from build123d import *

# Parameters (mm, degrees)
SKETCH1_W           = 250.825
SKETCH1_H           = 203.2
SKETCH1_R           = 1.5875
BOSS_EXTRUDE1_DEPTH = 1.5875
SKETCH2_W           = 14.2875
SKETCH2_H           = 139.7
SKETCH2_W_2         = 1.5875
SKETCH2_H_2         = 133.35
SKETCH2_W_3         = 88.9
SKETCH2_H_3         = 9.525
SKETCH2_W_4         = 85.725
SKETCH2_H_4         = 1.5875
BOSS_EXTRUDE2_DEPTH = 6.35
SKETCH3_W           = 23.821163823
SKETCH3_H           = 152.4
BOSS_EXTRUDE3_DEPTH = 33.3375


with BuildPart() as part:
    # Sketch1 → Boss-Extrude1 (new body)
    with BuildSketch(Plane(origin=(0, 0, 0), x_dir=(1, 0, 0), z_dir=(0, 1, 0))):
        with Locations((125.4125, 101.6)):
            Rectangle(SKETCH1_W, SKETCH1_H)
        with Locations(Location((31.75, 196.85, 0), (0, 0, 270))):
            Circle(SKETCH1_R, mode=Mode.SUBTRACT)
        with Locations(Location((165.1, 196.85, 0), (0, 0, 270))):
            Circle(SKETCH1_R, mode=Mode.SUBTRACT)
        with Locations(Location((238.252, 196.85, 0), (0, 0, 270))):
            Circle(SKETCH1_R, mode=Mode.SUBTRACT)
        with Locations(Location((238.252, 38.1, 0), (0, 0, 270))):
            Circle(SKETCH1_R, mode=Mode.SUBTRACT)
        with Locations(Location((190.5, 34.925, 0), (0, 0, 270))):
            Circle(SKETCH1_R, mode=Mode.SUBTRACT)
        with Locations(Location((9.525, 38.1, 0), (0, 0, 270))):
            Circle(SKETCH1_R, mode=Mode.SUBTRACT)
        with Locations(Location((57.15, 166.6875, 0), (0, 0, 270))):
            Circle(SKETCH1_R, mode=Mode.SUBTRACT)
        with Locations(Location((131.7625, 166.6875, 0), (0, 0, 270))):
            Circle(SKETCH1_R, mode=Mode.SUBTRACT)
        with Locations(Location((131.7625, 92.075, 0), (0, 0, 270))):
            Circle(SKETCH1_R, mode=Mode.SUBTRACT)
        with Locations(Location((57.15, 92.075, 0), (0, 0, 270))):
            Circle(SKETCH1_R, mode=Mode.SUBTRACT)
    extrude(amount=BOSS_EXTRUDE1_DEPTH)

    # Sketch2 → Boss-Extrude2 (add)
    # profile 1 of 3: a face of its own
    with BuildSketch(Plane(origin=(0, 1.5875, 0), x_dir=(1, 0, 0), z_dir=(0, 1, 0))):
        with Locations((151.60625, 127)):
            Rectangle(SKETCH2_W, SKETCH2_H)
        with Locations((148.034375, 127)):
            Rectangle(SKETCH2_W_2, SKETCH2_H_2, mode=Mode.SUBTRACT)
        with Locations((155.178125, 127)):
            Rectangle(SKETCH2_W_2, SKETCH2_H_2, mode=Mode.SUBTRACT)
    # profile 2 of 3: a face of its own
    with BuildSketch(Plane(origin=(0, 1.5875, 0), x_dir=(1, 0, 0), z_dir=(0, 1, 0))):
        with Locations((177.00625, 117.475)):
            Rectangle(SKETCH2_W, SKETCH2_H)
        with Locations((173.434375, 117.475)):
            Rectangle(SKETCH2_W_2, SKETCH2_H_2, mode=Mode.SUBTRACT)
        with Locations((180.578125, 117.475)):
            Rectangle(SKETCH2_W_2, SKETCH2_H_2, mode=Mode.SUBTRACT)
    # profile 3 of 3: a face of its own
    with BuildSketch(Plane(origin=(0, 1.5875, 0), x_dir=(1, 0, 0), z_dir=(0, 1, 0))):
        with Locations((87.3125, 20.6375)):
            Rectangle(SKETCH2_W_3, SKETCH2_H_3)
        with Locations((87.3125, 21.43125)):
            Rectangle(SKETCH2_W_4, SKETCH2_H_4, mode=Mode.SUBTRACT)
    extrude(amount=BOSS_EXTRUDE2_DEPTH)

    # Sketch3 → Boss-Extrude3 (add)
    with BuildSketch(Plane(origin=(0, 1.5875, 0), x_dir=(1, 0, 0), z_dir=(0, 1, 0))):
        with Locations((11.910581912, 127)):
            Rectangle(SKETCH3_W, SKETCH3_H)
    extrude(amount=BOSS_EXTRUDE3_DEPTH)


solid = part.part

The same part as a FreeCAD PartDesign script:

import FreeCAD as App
import Part
import Sketcher

V = App.Vector
Q = App.Units.Quantity

doc = App.newDocument("Part")
params = doc.addObject("Spreadsheet::Sheet", "Params")
for row, (alias, value) in enumerate([
    ("sketch1_height", "8 in"),
    ("sketch1_diameter", "0.125 in"),
    ("sketch1_width", "9.875 in"),
    ("pad1_length", "0.0625 in"),
    ("sketch2_width", "3.5 in"),
    ("sketch2_height", "5.5 in"),
    ("sketch2_height2", "5.25 in"),
    ("sketch2_width2", "0.5625 in"),
    ("sketch2_width3", "0.0625 in"),
    ("pad2_length", "0.25 in"),
    ("sketch3_height", "6 in"),
    ("pad3_length", "1.3125 in"),
], start=1):
    params.set(f"A{row}", alias)
    params.set(f"B{row}", "=" + value)
    params.setAlias(f"B{row}", alias)

body = doc.addObject("PartDesign::Body", "Body")

# Sketch on XZ plane
sketch1 = body.newObject("Sketcher::SketchObject", "Sketch")
sketch1.AttachmentSupport = (doc.getObject("XZ_Plane"), [""])
sketch1.MapMode = "FlatFace"
sketch1.addGeometry([
    Part.LineSegment(V(0, -203.2, 0), V(0, 0, 0)),  # 0
    Part.LineSegment(V(0, 0, 0), V(250.8, 0, 0)),  # 1
    Part.LineSegment(V(250.8, 0, 0), V(250.8, -203.2, 0)),  # 2
    Part.LineSegment(V(250.8, -203.2, 0), V(0, -203.2, 0)),  # 3
    Part.Circle(V(9.5, -38.1, 0), V(0, 0, 1), 1.6),  # 4
    Part.Circle(V(57.1, -92.1, 0), V(0, 0, 1), 1.6),  # 5
    Part.Circle(V(190.5, -34.9, 0), V(0, 0, 1), 1.6),  # 6
    Part.Circle(V(238.3, -38.1, 0), V(0, 0, 1), 1.6),  # 7
    Part.Circle(V(131.8, -92.1, 0), V(0, 0, 1), 1.6),  # 8
    Part.Circle(V(57.1, -166.7, 0), V(0, 0, 1), 1.6),  # 9
    Part.Circle(V(31.8, -196.8, 0), V(0, 0, 1), 1.6),  # 10
    Part.Circle(V(131.8, -166.7, 0), V(0, 0, 1), 1.6),  # 11
    Part.Circle(V(165.1, -196.8, 0), V(0, 0, 1), 1.6),  # 12
    Part.Circle(V(238.3, -196.8, 0), V(0, 0, 1), 1.6),  # 13
], False)
sketch1.addConstraint([
    Sketcher.Constraint("Coincident", 0, 2, 1, 1),
    Sketcher.Constraint("Coincident", 1, 2, 2, 1),
    Sketcher.Constraint("Coincident", 2, 2, 3, 1),
    Sketcher.Constraint("Coincident", 3, 2, 0, 1),
    Sketcher.Constraint("Vertical", 0),
    Sketcher.Constraint("Horizontal", 1),
    Sketcher.Constraint("Vertical", 2),
    Sketcher.Constraint("Horizontal", 3),
    Sketcher.Constraint("Coincident", 0, 2, -1, 1),
    Sketcher.Constraint("Equal", 4, 5),
    Sketcher.Constraint("Equal", 5, 6),
    Sketcher.Constraint("Equal", 6, 7),
    Sketcher.Constraint("Equal", 7, 8),
    Sketcher.Constraint("Equal", 8, 9),
    Sketcher.Constraint("Equal", 9, 10),
    Sketcher.Constraint("Equal", 10, 11),
    Sketcher.Constraint("Equal", 11, 12),
    Sketcher.Constraint("Equal", 12, 13),
    Sketcher.Constraint("Horizontal", 4, 3, 7, 3),
    Sketcher.Constraint("Horizontal", 5, 3, 8, 3),
    Sketcher.Constraint("Horizontal", 9, 3, 11, 3),
    Sketcher.Constraint("Horizontal", 10, 3, 12, 3),
    Sketcher.Constraint("Horizontal", 12, 3, 13, 3),
    Sketcher.Constraint("Vertical", 5, 3, 9, 3),
    Sketcher.Constraint("Vertical", 8, 3, 11, 3),
    Sketcher.Constraint("Vertical", 7, 3, 13, 3),
    Sketcher.Constraint("DistanceY", 0, 1, 0, 2, Q("8 in")),
    Sketcher.Constraint("Diameter", 4, Q("0.125 in")),
    Sketcher.Constraint("DistanceX", 10, 3, 9, 3, Q("1 in")),
    Sketcher.Constraint("DistanceY", 4, 3, -1, 1, Q("1.5 in")),
    Sketcher.Constraint("DistanceX", -1, 1, 6, 3, Q("7.5 in")),
    Sketcher.Constraint("DistanceX", -1, 1, 12, 3, Q("6.5 in")),
    Sketcher.Constraint("DistanceX", 1, 1, 1, 2, Q("9.875 in")),
    Sketcher.Constraint("DistanceX", -1, 1, 5, 3, Q("2.25 in")),
    Sketcher.Constraint("DistanceX", -1, 1, 7, 3, Q("9.38 in")),
    Sketcher.Constraint("DistanceY", 10, 3, -1, 1, Q("7.75 in")),
    Sketcher.Constraint("DistanceY", 5, 3, 6, 3, Q("2.25 in")),
    Sketcher.Constraint("DistanceX", -1, 1, 4, 3, Q("0.375 in")),
    Sketcher.Constraint("DistanceY", 5, 3, -1, 1, Q("3.625 in")),
    Sketcher.Constraint("DistanceX", -1, 1, 8, 3, Q("5.1875 in")),
    Sketcher.Constraint("DistanceY", 9, 3, -1, 1, Q("6.5625 in")),
])
sketch1.setExpression("Constraints[26]", "Params.sketch1_height")
sketch1.setExpression("Constraints[27]", "Params.sketch1_diameter")
sketch1.setExpression("Constraints[32]", "Params.sketch1_width")
pad1 = body.newObject("PartDesign::Pad", "Pad")
pad1.Profile = sketch1
pad1.setExpression("Length", "Params.pad1_length")
pad1.Reversed = True

# Sketch on XZ plane
sketch2 = body.newObject("Sketcher::SketchObject", "Sketch001")
sketch2.AttachmentSupport = (doc.getObject("XZ_Plane"), [""])
sketch2.MapMode = "FlatFace"
sketch2.AttachmentOffset = App.Placement(V(0, 0, -0.0625 * 25.4), App.Rotation())
sketch2.addGeometry([
    Part.LineSegment(V(144.5, -196.8, 0), V(144.5, -57.1, 0)),  # 0
    Part.LineSegment(V(144.5, -57.1, 0), V(158.8, -57.1, 0)),  # 1
    Part.LineSegment(V(158.8, -57.1, 0), V(158.8, -196.8, 0)),  # 2
    Part.LineSegment(V(158.8, -196.8, 0), V(144.5, -196.8, 0)),  # 3
    Part.LineSegment(V(148.8, -60.3, 0), V(147.2, -60.3, 0)),  # 4
    Part.LineSegment(V(147.2, -60.3, 0), V(147.2, -193.7, 0)),  # 5
    Part.LineSegment(V(147.2, -193.7, 0), V(148.8, -193.7, 0)),  # 6
    Part.LineSegment(V(148.8, -193.7, 0), V(148.8, -60.3, 0)),  # 7
    Part.LineSegment(V(156, -60.3, 0), V(154.4, -60.3, 0)),  # 8
    Part.LineSegment(V(154.4, -60.3, 0), V(154.4, -193.7, 0)),  # 9
    Part.LineSegment(V(154.4, -193.7, 0), V(156, -193.7, 0)),  # 10
    Part.LineSegment(V(156, -193.7, 0), V(156, -60.3, 0)),  # 11
    Part.LineSegment(V(169.9, -187.3, 0), V(169.9, -47.6, 0)),  # 12
    Part.LineSegment(V(169.9, -47.6, 0), V(184.2, -47.6, 0)),  # 13
    Part.LineSegment(V(184.2, -47.6, 0), V(184.2, -187.3, 0)),  # 14
    Part.LineSegment(V(184.2, -187.3, 0), V(169.9, -187.3, 0)),  # 15
    Part.LineSegment(V(174.2, -50.8, 0), V(172.6, -50.8, 0)),  # 16
    Part.LineSegment(V(172.6, -50.8, 0), V(172.6, -184.2, 0)),  # 17
    Part.LineSegment(V(172.6, -184.2, 0), V(174.2, -184.2, 0)),  # 18
    Part.LineSegment(V(174.2, -184.2, 0), V(174.2, -50.8, 0)),  # 19
    Part.LineSegment(V(181.4, -50.8, 0), V(179.8, -50.8, 0)),  # 20
    Part.LineSegment(V(179.8, -50.8, 0), V(179.8, -184.2, 0)),  # 21
    Part.LineSegment(V(179.8, -184.2, 0), V(181.4, -184.2, 0)),  # 22
    Part.LineSegment(V(181.4, -184.2, 0), V(181.4, -50.8, 0)),  # 23
    Part.LineSegment(V(42.9, -25.4, 0), V(42.9, -15.9, 0)),  # 24
    Part.LineSegment(V(42.9, -15.9, 0), V(131.8, -15.9, 0)),  # 25
    Part.LineSegment(V(131.8, -15.9, 0), V(131.8, -25.4, 0)),  # 26
    Part.LineSegment(V(131.8, -25.4, 0), V(42.9, -25.4, 0)),  # 27
    Part.LineSegment(V(130.2, -20.6, 0), V(44.5, -20.6, 0)),  # 28
    Part.LineSegment(V(44.5, -20.6, 0), V(44.5, -22.2, 0)),  # 29
    Part.LineSegment(V(44.5, -22.2, 0), V(130.2, -22.2, 0)),  # 30
    Part.LineSegment(V(130.2, -22.2, 0), V(130.2, -20.6, 0)),  # 31
], False)
sketch2.addConstraint([
    Sketcher.Constraint("Coincident", 0, 2, 1, 1),
    Sketcher.Constraint("Coincident", 1, 2, 2, 1),
    Sketcher.Constraint("Coincident", 2, 2, 3, 1),
    Sketcher.Constraint("Coincident", 3, 2, 0, 1),
    Sketcher.Constraint("Coincident", 4, 2, 5, 1),
    Sketcher.Constraint("Coincident", 5, 2, 6, 1),
    Sketcher.Constraint("Coincident", 6, 2, 7, 1),
    Sketcher.Constraint("Coincident", 7, 2, 4, 1),
    Sketcher.Constraint("Coincident", 8, 2, 9, 1),
    Sketcher.Constraint("Coincident", 9, 2, 10, 1),
    Sketcher.Constraint("Coincident", 10, 2, 11, 1),
    Sketcher.Constraint("Coincident", 11, 2, 8, 1),
    Sketcher.Constraint("Coincident", 12, 2, 13, 1),
    Sketcher.Constraint("Coincident", 13, 2, 14, 1),
    Sketcher.Constraint("Coincident", 14, 2, 15, 1),
    Sketcher.Constraint("Coincident", 15, 2, 12, 1),
    Sketcher.Constraint("Coincident", 16, 2, 17, 1),
    Sketcher.Constraint("Coincident", 17, 2, 18, 1),
    Sketcher.Constraint("Coincident", 18, 2, 19, 1),
    Sketcher.Constraint("Coincident", 19, 2, 16, 1),
    Sketcher.Constraint("Coincident", 20, 2, 21, 1),
    Sketcher.Constraint("Coincident", 21, 2, 22, 1),
    Sketcher.Constraint("Coincident", 22, 2, 23, 1),
    Sketcher.Constraint("Coincident", 23, 2, 20, 1),
    Sketcher.Constraint("Coincident", 24, 2, 25, 1),
    Sketcher.Constraint("Coincident", 25, 2, 26, 1),
    Sketcher.Constraint("Coincident", 26, 2, 27, 1),
    Sketcher.Constraint("Coincident", 27, 2, 24, 1),
    Sketcher.Constraint("Coincident", 28, 2, 29, 1),
    Sketcher.Constraint("Coincident", 29, 2, 30, 1),
    Sketcher.Constraint("Coincident", 30, 2, 31, 1),
    Sketcher.Constraint("Coincident", 31, 2, 28, 1),
    Sketcher.Constraint("Vertical", 0),
    Sketcher.Constraint("Horizontal", 1),
    Sketcher.Constraint("Vertical", 2),
    Sketcher.Constraint("Horizontal", 3),
    Sketcher.Constraint("Horizontal", 4),
    Sketcher.Constraint("Vertical", 5),
    Sketcher.Constraint("Horizontal", 6),
    Sketcher.Constraint("Vertical", 7),
    Sketcher.Constraint("Horizontal", 8),
    Sketcher.Constraint("Vertical", 9),
    Sketcher.Constraint("Horizontal", 10),
    Sketcher.Constraint("Vertical", 11),
    Sketcher.Constraint("Vertical", 12),
    Sketcher.Constraint("Horizontal", 13),
    Sketcher.Constraint("Vertical", 14),
    Sketcher.Constraint("Horizontal", 15),
    Sketcher.Constraint("Horizontal", 16),
    Sketcher.Constraint("Vertical", 17),
    Sketcher.Constraint("Horizontal", 18),
    Sketcher.Constraint("Vertical", 19),
    Sketcher.Constraint("Horizontal", 20),
    Sketcher.Constraint("Vertical", 21),
    Sketcher.Constraint("Horizontal", 22),
    Sketcher.Constraint("Vertical", 23),
    Sketcher.Constraint("Vertical", 24),
    Sketcher.Constraint("Horizontal", 25),
    Sketcher.Constraint("Vertical", 26),
    Sketcher.Constraint("Horizontal", 27),
    Sketcher.Constraint("Horizontal", 28),
    Sketcher.Constraint("Vertical", 29),
    Sketcher.Constraint("Horizontal", 30),
    Sketcher.Constraint("Vertical", 31),
    Sketcher.Constraint("Horizontal", 7, 2, 8, 2),
    Sketcher.Constraint("Horizontal", 6, 2, 9, 2),
    Sketcher.Constraint("Horizontal", 19, 2, 20, 2),
    Sketcher.Constraint("Horizontal", 18, 2, 21, 2),
    Sketcher.Constraint("Equal", 6, 8),
    Sketcher.Constraint("Equal", 3, 13),
    Sketcher.Constraint("Equal", 10, 16),
    Sketcher.Constraint("Equal", 18, 20),
    Sketcher.Constraint("Equal", 2, 12),
    Sketcher.Constraint("Equal", 11, 17),
    Sketcher.Constraint("Equal", 22, 29),
    Sketcher.Constraint("DistanceX", 25, 1, 25, 2, Q("3.5 in")),
    Sketcher.Constraint("DistanceY", 0, 1, 0, 2, Q("5.5 in")),
    Sketcher.Constraint("DistanceY", 16, 2, -1, 1, Q("2 in")),
    Sketcher.Constraint("DistanceY", 26, 2, -1, 1, Q("1 in")),
    Sketcher.Constraint("DistanceX", 1, 2, 13, 2, Q("1 in")),
    Sketcher.Constraint("DistanceX", 24, 2, 0, 2, Q("4 in")),
    Sketcher.Constraint("DistanceY", 5, 2, 5, 1, Q("5.25 in")),
    Sketcher.Constraint("DistanceY", 11, 2, 12, 2, Q("0.5 in")),
    Sketcher.Constraint("DistanceY", 2, 2, 17, 2, Q("0.5 in")),
    Sketcher.Constraint("DistanceY", 4, 2, 30, 2, Q("1.5 in")),
    Sketcher.Constraint("DistanceX", 1, 1, 1, 2, Q("0.5625 in")),
    Sketcher.Constraint("DistanceX", 4, 2, 4, 1, Q("0.0625 in")),
    Sketcher.Constraint("DistanceX", 28, 2, 28, 1, Q("3.375 in")),
    Sketcher.Constraint("DistanceY", 24, 1, 24, 2, Q("0.375 in")),
    Sketcher.Constraint("DistanceX", -1, 1, 1, 2, Q("6.25 in")),
    Sketcher.Constraint("DistanceX", -1, 1, 28, 2, Q("1.75 in")),
    Sketcher.Constraint("DistanceY", 4, 2, 24, 2, Q("1.75 in")),
    Sketcher.Constraint("DistanceX", -1, 1, 4, 2, Q("5.796875 in")),
    Sketcher.Constraint("DistanceX", -1, 1, 8, 2, Q("6.078125 in")),
    Sketcher.Constraint("DistanceX", -1, 1, 16, 2, Q("6.796875 in")),
    Sketcher.Constraint("DistanceX", -1, 1, 20, 2, Q("7.078125 in")),
])
sketch2.setExpression("Constraints[75]", "Params.sketch2_width")
sketch2.setExpression("Constraints[76]", "Params.sketch2_height")
sketch2.setExpression("Constraints[81]", "Params.sketch2_height2")
sketch2.setExpression("Constraints[85]", "Params.sketch2_width2")
sketch2.setExpression("Constraints[86]", "Params.sketch2_width3")
pad2 = body.newObject("PartDesign::Pad", "Pad001")
pad2.Profile = sketch2
pad2.setExpression("Length", "Params.pad2_length")
pad2.Reversed = True

# Sketch on XZ plane
sketch3 = body.newObject("Sketcher::SketchObject", "Sketch002")
sketch3.AttachmentSupport = (doc.getObject("XZ_Plane"), [""])
sketch3.MapMode = "FlatFace"
sketch3.AttachmentOffset = App.Placement(V(0, 0, -0.0625 * 25.4), App.Rotation())
sketch3.addGeometry([
    Part.LineSegment(V(0, -203, 0), V(0, -51, 0)),
    Part.LineSegment(V(0, -51, 0), V(24, -51, 0)),
    Part.LineSegment(V(24, -51, 0), V(24, -203, 0)),
    Part.LineSegment(V(24, -203, 0), V(0, -203, 0)),
], False)
sketch3.addConstraint([
    Sketcher.Constraint("Coincident", 0, 2, 1, 1),
    Sketcher.Constraint("Coincident", 1, 2, 2, 1),
    Sketcher.Constraint("Coincident", 2, 2, 3, 1),
    Sketcher.Constraint("Coincident", 3, 2, 0, 1),
    Sketcher.Constraint("Vertical", 0),
    Sketcher.Constraint("Horizontal", 1),
    Sketcher.Constraint("Vertical", 2),
    Sketcher.Constraint("Horizontal", 3),
    Sketcher.Constraint("PointOnObject", 0, 2, -2),
    Sketcher.Constraint("DistanceY", 0, 1, 0, 2, Q("6 in")),
    Sketcher.Constraint("DistanceY", 0, 2, -1, 1, Q("2 in")),
    Sketcher.Constraint("DistanceX", 1, 1, 1, 2, Q("23.821164 mm")),
])
sketch3.setExpression("Constraints[9]", "Params.sketch3_height")
pad3 = body.newObject("PartDesign::Pad", "Pad002")
pad3.Profile = sketch3
pad3.setExpression("Length", "Params.pad3_length")
pad3.Reversed = True

doc.recompute()
